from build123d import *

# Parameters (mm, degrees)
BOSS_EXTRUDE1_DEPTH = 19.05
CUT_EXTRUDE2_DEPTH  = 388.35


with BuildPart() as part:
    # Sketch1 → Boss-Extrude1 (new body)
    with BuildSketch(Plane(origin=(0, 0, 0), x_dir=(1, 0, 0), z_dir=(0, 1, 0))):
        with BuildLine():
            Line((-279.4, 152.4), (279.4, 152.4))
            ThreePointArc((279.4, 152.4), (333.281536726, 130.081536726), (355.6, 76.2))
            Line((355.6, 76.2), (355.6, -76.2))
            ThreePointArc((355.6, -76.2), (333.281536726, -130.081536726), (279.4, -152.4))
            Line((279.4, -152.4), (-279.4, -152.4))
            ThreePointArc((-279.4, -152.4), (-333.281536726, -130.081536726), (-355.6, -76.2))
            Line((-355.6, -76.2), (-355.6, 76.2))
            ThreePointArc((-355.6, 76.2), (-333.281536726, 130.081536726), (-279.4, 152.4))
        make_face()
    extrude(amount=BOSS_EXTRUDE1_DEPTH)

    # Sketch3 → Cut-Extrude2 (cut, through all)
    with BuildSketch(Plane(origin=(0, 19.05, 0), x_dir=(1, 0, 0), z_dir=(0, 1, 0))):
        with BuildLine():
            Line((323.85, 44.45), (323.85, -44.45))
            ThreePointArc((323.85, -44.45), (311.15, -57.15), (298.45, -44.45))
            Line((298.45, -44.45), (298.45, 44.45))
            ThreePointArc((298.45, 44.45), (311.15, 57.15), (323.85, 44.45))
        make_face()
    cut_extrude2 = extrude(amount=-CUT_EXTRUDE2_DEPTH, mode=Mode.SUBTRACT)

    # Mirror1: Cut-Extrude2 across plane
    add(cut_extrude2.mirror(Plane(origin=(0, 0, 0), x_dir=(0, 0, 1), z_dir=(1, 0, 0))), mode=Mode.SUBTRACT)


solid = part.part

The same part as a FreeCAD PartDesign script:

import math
import FreeCAD as App
import Part
import Sketcher
from FreeCAD import Vector
Q = App.Units.Quantity

doc = App.newDocument("Part")
body = doc.addObject("PartDesign::Body", "Body")

sketch1 = body.newObject("Sketcher::SketchObject", "Sketch")
sketch1.AttachmentSupport = (doc.getObject("XZ_Plane"), [""])
sketch1.MapMode = "FlatFace"
sketch1.addGeometry(Part.LineSegment(Vector(279.4, -152.4, 0), Vector(-279.4, -152.4, 0)), False)
sketch1.addGeometry(Part.ArcOfCircle(Part.Circle(Vector(-279.4, -76.2, 0), Vector(0, 0, 1), 76.2), math.radians(-180), math.radians(-90)), False)
sketch1.addGeometry(Part.LineSegment(Vector(-355.6, -76.2, 0), Vector(-355.6, 76.2, 0)), False)
sketch1.addGeometry(Part.ArcOfCircle(Part.Circle(Vector(-279.4, 76.2, 0), Vector(0, 0, 1), 76.2), math.radians(90), math.radians(180)), False)
sketch1.addGeometry(Part.LineSegment(Vector(-279.4, 152.4, 0), Vector(279.4, 152.4, 0)), False)
sketch1.addGeometry(Part.ArcOfCircle(Part.Circle(Vector(279.4, 76.2, 0), Vector(0, 0, 1), 76.2), math.radians(0), math.radians(90)), False)
sketch1.addGeometry(Part.LineSegment(Vector(355.6, 76.2, 0), Vector(355.6, -76.2, 0)), False)
sketch1.addGeometry(Part.ArcOfCircle(Part.Circle(Vector(279.4, -76.2, 0), Vector(0, 0, 1), 76.2), math.radians(-90), math.radians(0)), False)
sketch1.addConstraint(Sketcher.Constraint("Tangent", 0, 2, 1, 2))
sketch1.addConstraint(Sketcher.Constraint("Tangent", 1, 1, 2, 1))
sketch1.addConstraint(Sketcher.Constraint("Tangent", 2, 2, 3, 2))
sketch1.addConstraint(Sketcher.Constraint("Tangent", 3, 1, 4, 1))
sketch1.addConstraint(Sketcher.Constraint("Tangent", 4, 2, 5, 2))
sketch1.addConstraint(Sketcher.Constraint("Tangent", 5, 1, 6, 1))
sketch1.addConstraint(Sketcher.Constraint("Tangent", 6, 2, 7, 2))
sketch1.addConstraint(Sketcher.Constraint("Tangent", 7, 1, 0, 1))
sketch1.addConstraint(Sketcher.Constraint("Horizontal", 0))
sketch1.addConstraint(Sketcher.Constraint("Vertical", 2))
sketch1.addConstraint(Sketcher.Constraint("Horizontal", 4))
sketch1.addConstraint(Sketcher.Constraint("Vertical", 6))
sketch1.addConstraint(Sketcher.Constraint("Equal", 1, 3))
sketch1.addConstraint(Sketcher.Constraint("Equal", 3, 5))
sketch1.addConstraint(Sketcher.Constraint("Equal", 5, 7))
sketch1.addConstraint(Sketcher.Constraint("Symmetric", 1, 3, 5, 3, -1, 1))
sketch1.addConstraint(Sketcher.Constraint("Radius", 1, Q("3 in")))
sketch1.addConstraint(Sketcher.Constraint("DistanceX", 0, 2, 0, 1, Q("22 in")))
sketch1.addConstraint(Sketcher.Constraint("DistanceY", 2, 1, 2, 2, Q("6 in")))
pad1 = body.newObject("PartDesign::Pad", "Pad")
pad1.Profile = sketch1
pad1.Length = Q("0.75 in")
pad1.Reversed = True

sketch2 = body.newObject("Sketcher::SketchObject", "Sketch001")
sketch2.AttachmentSupport = (doc.getObject("XZ_Plane"), [""])
sketch2.MapMode = "FlatFace"
sketch2.AttachmentOffset = App.Placement(Vector(0, 0, -0.75 * 25.4), App.Rotation())
sketch2.addGeometry(Part.LineSegment(Vector(323.85, 44.45, 0), Vector(323.85, -44.45, 0)), False)
sketch2.addGeometry(Part.ArcOfCircle(Part.Circle(Vector(311.15, -44.45, 0), Vector(0, 0, 1), 12.7), math.radians(180), math.radians(360)), False)
sketch2.addGeometry(Part.LineSegment(Vector(298.45, -44.45, 0), Vector(298.45, 44.45, 0)), False)
sketch2.addGeometry(Part.ArcOfCircle(Part.Circle(Vector(311.15, 44.45, 0), Vector(0, 0, 1), 12.7), math.radians(0), math.radians(180)), False)
sketch2.addConstraint(Sketcher.Constraint("Tangent", 0, 2, 1, 2))
sketch2.addConstraint(Sketcher.Constraint("Tangent", 1, 1, 2, 1))
sketch2.addConstraint(Sketcher.Constraint("Tangent", 2, 2, 3, 2))
sketch2.addConstraint(Sketcher.Constraint("Tangent", 3, 1, 0, 1))
sketch2.addConstraint(Sketcher.Constraint("Vertical", 0))
sketch2.addConstraint(Sketcher.Constraint("Vertical", 2))
sketch2.addConstraint(Sketcher.Constraint("Radius", 1, Q("0.5 in")))
sketch2.addConstraint(Sketcher.Constraint("DistanceY", 0, 2, 0, 1, Q("3.5 in")))
sketch2.addConstraint(Sketcher.Constraint("DistanceX", -1, 1, 1, 3, Q("12.25 in")))
sketch2.addConstraint(Sketcher.Constraint("DistanceY", 1, 3, -1, 1, Q("1.75 in")))
pocket1 = body.newObject("PartDesign::Pocket", "Pocket")
pocket1.Profile = sketch2
pocket1.Type = "ThroughAll"
pocket1.Reversed = True
doc.recompute()

mirrored = body.newObject("PartDesign::Mirrored", "Mirrored")
mirrored.Originals = [pocket1]
mirrored.MirrorPlane = (doc.getObject("YZ_Plane"), [""])
body.Tip = mirrored

doc.recompute()
